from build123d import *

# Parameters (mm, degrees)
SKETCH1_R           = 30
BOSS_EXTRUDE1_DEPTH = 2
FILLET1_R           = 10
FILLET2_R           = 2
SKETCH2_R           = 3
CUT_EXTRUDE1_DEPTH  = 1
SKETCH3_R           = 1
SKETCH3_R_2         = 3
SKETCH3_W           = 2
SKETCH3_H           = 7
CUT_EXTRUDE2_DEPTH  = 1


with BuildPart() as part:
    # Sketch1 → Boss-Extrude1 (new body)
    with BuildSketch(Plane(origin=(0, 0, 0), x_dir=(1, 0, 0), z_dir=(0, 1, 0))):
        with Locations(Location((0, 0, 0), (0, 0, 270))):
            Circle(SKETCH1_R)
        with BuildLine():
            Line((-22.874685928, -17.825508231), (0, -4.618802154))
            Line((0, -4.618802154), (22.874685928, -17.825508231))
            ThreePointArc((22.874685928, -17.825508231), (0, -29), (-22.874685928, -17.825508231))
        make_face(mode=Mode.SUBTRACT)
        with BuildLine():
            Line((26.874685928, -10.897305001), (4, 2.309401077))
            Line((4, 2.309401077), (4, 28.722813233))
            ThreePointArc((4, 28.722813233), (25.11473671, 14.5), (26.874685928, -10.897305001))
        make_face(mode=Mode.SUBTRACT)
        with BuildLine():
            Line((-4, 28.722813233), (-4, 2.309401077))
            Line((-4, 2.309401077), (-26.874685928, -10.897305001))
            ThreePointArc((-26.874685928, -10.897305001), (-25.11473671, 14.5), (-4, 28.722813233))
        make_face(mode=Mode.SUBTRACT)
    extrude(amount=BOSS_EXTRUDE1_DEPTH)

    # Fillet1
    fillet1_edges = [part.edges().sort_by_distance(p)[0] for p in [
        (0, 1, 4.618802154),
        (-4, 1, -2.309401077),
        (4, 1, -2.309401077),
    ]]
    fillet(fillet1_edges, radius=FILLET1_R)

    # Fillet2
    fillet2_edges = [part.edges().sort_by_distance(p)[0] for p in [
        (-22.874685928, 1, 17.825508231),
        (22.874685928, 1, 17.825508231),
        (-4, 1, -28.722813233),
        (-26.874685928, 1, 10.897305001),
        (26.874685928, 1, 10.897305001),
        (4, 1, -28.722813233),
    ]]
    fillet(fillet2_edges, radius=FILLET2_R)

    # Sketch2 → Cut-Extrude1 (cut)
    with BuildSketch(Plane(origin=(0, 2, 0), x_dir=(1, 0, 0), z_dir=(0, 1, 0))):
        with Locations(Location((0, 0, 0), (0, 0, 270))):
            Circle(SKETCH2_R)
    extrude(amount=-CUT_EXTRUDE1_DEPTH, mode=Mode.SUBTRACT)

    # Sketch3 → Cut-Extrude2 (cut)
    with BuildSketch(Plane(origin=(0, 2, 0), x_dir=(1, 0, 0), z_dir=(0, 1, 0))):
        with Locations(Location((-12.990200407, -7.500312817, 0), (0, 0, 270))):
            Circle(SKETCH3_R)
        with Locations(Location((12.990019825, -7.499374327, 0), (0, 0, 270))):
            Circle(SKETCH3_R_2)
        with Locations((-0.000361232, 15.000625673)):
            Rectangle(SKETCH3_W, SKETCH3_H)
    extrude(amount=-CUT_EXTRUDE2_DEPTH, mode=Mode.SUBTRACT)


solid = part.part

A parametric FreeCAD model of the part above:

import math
import FreeCAD as App
import Part
import Sketcher

V = App.Vector
Q = App.Units.Quantity


def edges_at(feature, points):
    """Names of the edges that pass closest to the given points."""
    edges = feature.Shape.Edges
    near = lambda p: min(range(len(edges)), key=lambda i: edges[i].distToShape(Part.Vertex(*p))[0])
    return sorted({f"Edge{near(p) + 1}" for p in points})


def add_polygon(sketch, points):
    """Adds a closed chain of lines whose ends are joined by coincident constraints."""
    first, n = sketch.GeometryCount, len(points)
    for a, b in zip(points, points[1:] + points[:1]):
        sketch.addGeometry(Part.LineSegment(App.Vector(*a, 0), App.Vector(*b, 0)), False)
    for i in range(n):
        sketch.addConstraint(Sketcher.Constraint("Coincident", first + i, 2, first + (i + 1) % n, 1))

doc = App.newDocument("Part")
body = doc.addObject("PartDesign::Body", "Body")

# Sketch on XZ plane
sketch1 = doc.addObject("Sketcher::SketchObject", "Sketch")
body.addObject(sketch1)
sketch1.AttachmentSupport = (doc.XZ_Plane, [""])
sketch1.MapMode = "FlatFace"
sketch1.addGeometry(Part.Circle(V(0, 0, 0), V(0, 0, 1), 30), False)
sketch1.addGeometry(Part.ArcOfCircle(Part.Circle(V(0, 0, 0), V(0, 0, 1), 29), math.radians(157.928142), math.radians(262.071858)), False)
sketch1.addGeometry(Part.LineSegment(V(-4, -28.722813, 0), V(-4, -2.309401, 0)), False)
sketch1.addGeometry(Part.LineSegment(V(-4, -2.309401, 0), V(-26.874686, 10.897305, 0)), False)
sketch1.addGeometry(Part.ArcOfCircle(Part.Circle(V(0, 0, 0), V(0, 0, 1), 29), math.radians(-82.071858), math.radians(22.071858)), False)
sketch1.addGeometry(Part.LineSegment(V(26.874686, 10.897305, 0), V(4, -2.309401, 0)), False)
sketch1.addGeometry(Part.LineSegment(V(4, -2.309401, 0), V(4, -28.722813, 0)), False)
sketch1.addGeometry(Part.ArcOfCircle(Part.Circle(V(0, 0, 0), V(0, 0, 1), 29), math.radians(37.928142), math.radians(142.071858)), False)
sketch1.addGeometry(Part.LineSegment(V(-22.874686, 17.825508, 0), V(0, 4.618802, 0)), False)
sketch1.addGeometry(Part.LineSegment(V(0, 4.618802, 0), V(22.874686, 17.825508, 0)), False)
sketch1.addConstraint(Sketcher.Constraint("Coincident", 1, 2, 2, 1))
sketch1.addConstraint(Sketcher.Constraint("Coincident", 2, 2, 3, 1))
sketch1.addConstraint(Sketcher.Constraint("Coincident", 3, 2, 1, 1))
sketch1.addConstraint(Sketcher.Constraint("Coincident", 4, 2, 5, 1))
sketch1.addConstraint(Sketcher.Constraint("Coincident", 5, 2, 6, 1))
sketch1.addConstraint(Sketcher.Constraint("Coincident", 6, 2, 4, 1))
sketch1.addConstraint(Sketcher.Constraint("Coincident", 7, 2, 8, 1))
sketch1.addConstraint(Sketcher.Constraint("Coincident", 8, 2, 9, 1))
sketch1.addConstraint(Sketcher.Constraint("Coincident", 9, 2, 7, 1))
sketch1.addConstraint(Sketcher.Constraint("Vertical", 2))
sketch1.addConstraint(Sketcher.Constraint("Vertical", 6))
sketch1.addConstraint(Sketcher.Constraint("Coincident", 0, 3, -1, 1))
sketch1.addConstraint(Sketcher.Constraint("Coincident", 1, 3, -1, 1))
sketch1.addConstraint(Sketcher.Constraint("Coincident", 4, 3, -1, 1))
sketch1.addConstraint(Sketcher.Constraint("Coincident", 7, 3, -1, 1))
sketch1.addConstraint(Sketcher.Constraint("Equal", 1, 4))
sketch1.addConstraint(Sketcher.Constraint("Equal", 4, 7))
sketch1.addConstraint(Sketcher.Constraint("Symmetric", 2, 2, 5, 2, -2))
sketch1.addConstraint(Sketcher.Constraint("PointOnObject", 8, 2, -2))
sketch1.addConstraint(Sketcher.Constraint("Parallel", 3, 8))
sketch1.addConstraint(Sketcher.Constraint("Parallel", 5, 9))
sketch1.addConstraint(Sketcher.Constraint("Horizontal", 3, 2, 4, 2))
sketch1.addConstraint(Sketcher.Constraint("Equal", 5, 8))
sketch1.addConstraint(Sketcher.Constraint("Diameter", 0, Q("60 mm")))
sketch1.addConstraint(Sketcher.Constraint("Radius", 1, Q("29 mm")))
sketch1.addConstraint(Sketcher.Constraint("Angle", 3, Q("150 deg")))
sketch1.addConstraint(Sketcher.Constraint("DistanceX", 1, 2, -1, 1, Q("4 mm")))
sketch1.addConstraint(Sketcher.Constraint("DistanceY", 2, 2, -1, 1, Q("2.309401 mm")))
pad1 = doc.addObject("PartDesign::Pad", "Pad")
body.addObject(pad1)
pad1.Profile = sketch1
pad1.Length = 2
pad1.Reversed = True
doc.recompute()

fillet = doc.addObject("PartDesign::Fillet", "Fillet")
body.addObject(fillet)
fillet.Base = (pad1, edges_at(pad1, [(0, 1, 4.619), (-4, 1, -2.309), (4, 1, -2.309)]))
fillet.Radius = 10
doc.recompute()

fillet2 = doc.addObject("PartDesign::Fillet", "Fillet001")
body.addObject(fillet2)
fillet2.Base = (fillet, edges_at(fillet, [
    (-22.875, 1, 17.826),
    (22.875, 1, 17.826),
    (-4, 1, -28.723),
    (-26.875, 1, 10.897),
    (26.875, 1, 10.897),
    (4, 1, -28.723),
]))
fillet2.Radius = 2

# Sketch on XZ plane
sketch2 = doc.addObject("Sketcher::SketchObject", "Sketch001")
body.addObject(sketch2)
sketch2.AttachmentSupport = (doc.XZ_Plane, [""])
sketch2.MapMode = "FlatFace"
sketch2.AttachmentOffset = App.Placement(V(0, 0, -2), App.Rotation())
sketch2.addGeometry(Part.Circle(V(0, 0, 0), V(0, 0, 1), 3), False)
sketch2.addConstraint(Sketcher.Constraint("Coincident", 0, 3, -1, 1))
sketch2.addConstraint(Sketcher.Constraint("Diameter", 0, Q("6 mm")))
pocket1 = doc.addObject("PartDesign::Pocket", "Pocket")
body.addObject(pocket1)
pocket1.Profile = sketch2
pocket1.Length = 1
pocket1.Reversed = True

# Sketch on XZ plane
sketch3 = doc.addObject("Sketcher::SketchObject", "Sketch002")
body.addObject(sketch3)
sketch3.AttachmentSupport = (doc.XZ_Plane, [""])
sketch3.MapMode = "FlatFace"
sketch3.AttachmentOffset = App.Placement(V(0, 0, -2), App.Rotation())
sketch3.addGeometry(Part.Circle(V(-12.9902, 7.500313, 0), V(0, 0, 1), 1), False)  # 0
sketch3.addGeometry(Part.Circle(V(12.99002, 7.499374, 0), V(0, 0, 1), 3), False)  # 1
add_polygon(sketch3, [(-1.000361, -18.500626), (-1.000361, -11.500626), (0.999639, -11.500626), (0.999639, -18.500626)])  # lines 2-5
sketch3.addConstraint(Sketcher.Constraint("Vertical", 2))
sketch3.addConstraint(Sketcher.Constraint("Horizontal", 3))
sketch3.addConstraint(Sketcher.Constraint("Vertical", 4))
sketch3.addConstraint(Sketcher.Constraint("Horizontal", 5))
sketch3.addConstraint(Sketcher.Constraint("Diameter", 0, Q("2 mm")))
sketch3.addConstraint(Sketcher.Constraint("Diameter", 1, Q("6 mm")))
sketch3.addConstraint(Sketcher.Constraint("DistanceX", 3, 1, 3, 2, Q("2 mm")))
sketch3.addConstraint(Sketcher.Constraint("DistanceY", 2, 1, 2, 2, Q("7 mm")))
sketch3.addConstraint(Sketcher.Constraint("DistanceY", 2, 2, 1, 3, Q("19 mm")))
sketch3.addConstraint(Sketcher.Constraint("DistanceX", 0, 3, -1, 1, Q("12.9902 mm")))
sketch3.addConstraint(Sketcher.Constraint("DistanceX", -1, 1, 1, 3, Q("12.99002 mm")))
sketch3.addConstraint(Sketcher.Constraint("DistanceX", 2, 2, -1, 1, Q("1.000361 mm")))
sketch3.addConstraint(Sketcher.Constraint("DistanceY", 1, 3, 0, 3, Q("0.000938 mm")))
sketch3.addConstraint(Sketcher.Constraint("DistanceY", -1, 1, 0, 3, Q("7.500313 mm")))
pocket2 = doc.addObject("PartDesign::Pocket", "Pocket001")
body.addObject(pocket2)
pocket2.Profile = sketch3
pocket2.Length = 1
pocket2.Reversed = True

doc.recompute()
